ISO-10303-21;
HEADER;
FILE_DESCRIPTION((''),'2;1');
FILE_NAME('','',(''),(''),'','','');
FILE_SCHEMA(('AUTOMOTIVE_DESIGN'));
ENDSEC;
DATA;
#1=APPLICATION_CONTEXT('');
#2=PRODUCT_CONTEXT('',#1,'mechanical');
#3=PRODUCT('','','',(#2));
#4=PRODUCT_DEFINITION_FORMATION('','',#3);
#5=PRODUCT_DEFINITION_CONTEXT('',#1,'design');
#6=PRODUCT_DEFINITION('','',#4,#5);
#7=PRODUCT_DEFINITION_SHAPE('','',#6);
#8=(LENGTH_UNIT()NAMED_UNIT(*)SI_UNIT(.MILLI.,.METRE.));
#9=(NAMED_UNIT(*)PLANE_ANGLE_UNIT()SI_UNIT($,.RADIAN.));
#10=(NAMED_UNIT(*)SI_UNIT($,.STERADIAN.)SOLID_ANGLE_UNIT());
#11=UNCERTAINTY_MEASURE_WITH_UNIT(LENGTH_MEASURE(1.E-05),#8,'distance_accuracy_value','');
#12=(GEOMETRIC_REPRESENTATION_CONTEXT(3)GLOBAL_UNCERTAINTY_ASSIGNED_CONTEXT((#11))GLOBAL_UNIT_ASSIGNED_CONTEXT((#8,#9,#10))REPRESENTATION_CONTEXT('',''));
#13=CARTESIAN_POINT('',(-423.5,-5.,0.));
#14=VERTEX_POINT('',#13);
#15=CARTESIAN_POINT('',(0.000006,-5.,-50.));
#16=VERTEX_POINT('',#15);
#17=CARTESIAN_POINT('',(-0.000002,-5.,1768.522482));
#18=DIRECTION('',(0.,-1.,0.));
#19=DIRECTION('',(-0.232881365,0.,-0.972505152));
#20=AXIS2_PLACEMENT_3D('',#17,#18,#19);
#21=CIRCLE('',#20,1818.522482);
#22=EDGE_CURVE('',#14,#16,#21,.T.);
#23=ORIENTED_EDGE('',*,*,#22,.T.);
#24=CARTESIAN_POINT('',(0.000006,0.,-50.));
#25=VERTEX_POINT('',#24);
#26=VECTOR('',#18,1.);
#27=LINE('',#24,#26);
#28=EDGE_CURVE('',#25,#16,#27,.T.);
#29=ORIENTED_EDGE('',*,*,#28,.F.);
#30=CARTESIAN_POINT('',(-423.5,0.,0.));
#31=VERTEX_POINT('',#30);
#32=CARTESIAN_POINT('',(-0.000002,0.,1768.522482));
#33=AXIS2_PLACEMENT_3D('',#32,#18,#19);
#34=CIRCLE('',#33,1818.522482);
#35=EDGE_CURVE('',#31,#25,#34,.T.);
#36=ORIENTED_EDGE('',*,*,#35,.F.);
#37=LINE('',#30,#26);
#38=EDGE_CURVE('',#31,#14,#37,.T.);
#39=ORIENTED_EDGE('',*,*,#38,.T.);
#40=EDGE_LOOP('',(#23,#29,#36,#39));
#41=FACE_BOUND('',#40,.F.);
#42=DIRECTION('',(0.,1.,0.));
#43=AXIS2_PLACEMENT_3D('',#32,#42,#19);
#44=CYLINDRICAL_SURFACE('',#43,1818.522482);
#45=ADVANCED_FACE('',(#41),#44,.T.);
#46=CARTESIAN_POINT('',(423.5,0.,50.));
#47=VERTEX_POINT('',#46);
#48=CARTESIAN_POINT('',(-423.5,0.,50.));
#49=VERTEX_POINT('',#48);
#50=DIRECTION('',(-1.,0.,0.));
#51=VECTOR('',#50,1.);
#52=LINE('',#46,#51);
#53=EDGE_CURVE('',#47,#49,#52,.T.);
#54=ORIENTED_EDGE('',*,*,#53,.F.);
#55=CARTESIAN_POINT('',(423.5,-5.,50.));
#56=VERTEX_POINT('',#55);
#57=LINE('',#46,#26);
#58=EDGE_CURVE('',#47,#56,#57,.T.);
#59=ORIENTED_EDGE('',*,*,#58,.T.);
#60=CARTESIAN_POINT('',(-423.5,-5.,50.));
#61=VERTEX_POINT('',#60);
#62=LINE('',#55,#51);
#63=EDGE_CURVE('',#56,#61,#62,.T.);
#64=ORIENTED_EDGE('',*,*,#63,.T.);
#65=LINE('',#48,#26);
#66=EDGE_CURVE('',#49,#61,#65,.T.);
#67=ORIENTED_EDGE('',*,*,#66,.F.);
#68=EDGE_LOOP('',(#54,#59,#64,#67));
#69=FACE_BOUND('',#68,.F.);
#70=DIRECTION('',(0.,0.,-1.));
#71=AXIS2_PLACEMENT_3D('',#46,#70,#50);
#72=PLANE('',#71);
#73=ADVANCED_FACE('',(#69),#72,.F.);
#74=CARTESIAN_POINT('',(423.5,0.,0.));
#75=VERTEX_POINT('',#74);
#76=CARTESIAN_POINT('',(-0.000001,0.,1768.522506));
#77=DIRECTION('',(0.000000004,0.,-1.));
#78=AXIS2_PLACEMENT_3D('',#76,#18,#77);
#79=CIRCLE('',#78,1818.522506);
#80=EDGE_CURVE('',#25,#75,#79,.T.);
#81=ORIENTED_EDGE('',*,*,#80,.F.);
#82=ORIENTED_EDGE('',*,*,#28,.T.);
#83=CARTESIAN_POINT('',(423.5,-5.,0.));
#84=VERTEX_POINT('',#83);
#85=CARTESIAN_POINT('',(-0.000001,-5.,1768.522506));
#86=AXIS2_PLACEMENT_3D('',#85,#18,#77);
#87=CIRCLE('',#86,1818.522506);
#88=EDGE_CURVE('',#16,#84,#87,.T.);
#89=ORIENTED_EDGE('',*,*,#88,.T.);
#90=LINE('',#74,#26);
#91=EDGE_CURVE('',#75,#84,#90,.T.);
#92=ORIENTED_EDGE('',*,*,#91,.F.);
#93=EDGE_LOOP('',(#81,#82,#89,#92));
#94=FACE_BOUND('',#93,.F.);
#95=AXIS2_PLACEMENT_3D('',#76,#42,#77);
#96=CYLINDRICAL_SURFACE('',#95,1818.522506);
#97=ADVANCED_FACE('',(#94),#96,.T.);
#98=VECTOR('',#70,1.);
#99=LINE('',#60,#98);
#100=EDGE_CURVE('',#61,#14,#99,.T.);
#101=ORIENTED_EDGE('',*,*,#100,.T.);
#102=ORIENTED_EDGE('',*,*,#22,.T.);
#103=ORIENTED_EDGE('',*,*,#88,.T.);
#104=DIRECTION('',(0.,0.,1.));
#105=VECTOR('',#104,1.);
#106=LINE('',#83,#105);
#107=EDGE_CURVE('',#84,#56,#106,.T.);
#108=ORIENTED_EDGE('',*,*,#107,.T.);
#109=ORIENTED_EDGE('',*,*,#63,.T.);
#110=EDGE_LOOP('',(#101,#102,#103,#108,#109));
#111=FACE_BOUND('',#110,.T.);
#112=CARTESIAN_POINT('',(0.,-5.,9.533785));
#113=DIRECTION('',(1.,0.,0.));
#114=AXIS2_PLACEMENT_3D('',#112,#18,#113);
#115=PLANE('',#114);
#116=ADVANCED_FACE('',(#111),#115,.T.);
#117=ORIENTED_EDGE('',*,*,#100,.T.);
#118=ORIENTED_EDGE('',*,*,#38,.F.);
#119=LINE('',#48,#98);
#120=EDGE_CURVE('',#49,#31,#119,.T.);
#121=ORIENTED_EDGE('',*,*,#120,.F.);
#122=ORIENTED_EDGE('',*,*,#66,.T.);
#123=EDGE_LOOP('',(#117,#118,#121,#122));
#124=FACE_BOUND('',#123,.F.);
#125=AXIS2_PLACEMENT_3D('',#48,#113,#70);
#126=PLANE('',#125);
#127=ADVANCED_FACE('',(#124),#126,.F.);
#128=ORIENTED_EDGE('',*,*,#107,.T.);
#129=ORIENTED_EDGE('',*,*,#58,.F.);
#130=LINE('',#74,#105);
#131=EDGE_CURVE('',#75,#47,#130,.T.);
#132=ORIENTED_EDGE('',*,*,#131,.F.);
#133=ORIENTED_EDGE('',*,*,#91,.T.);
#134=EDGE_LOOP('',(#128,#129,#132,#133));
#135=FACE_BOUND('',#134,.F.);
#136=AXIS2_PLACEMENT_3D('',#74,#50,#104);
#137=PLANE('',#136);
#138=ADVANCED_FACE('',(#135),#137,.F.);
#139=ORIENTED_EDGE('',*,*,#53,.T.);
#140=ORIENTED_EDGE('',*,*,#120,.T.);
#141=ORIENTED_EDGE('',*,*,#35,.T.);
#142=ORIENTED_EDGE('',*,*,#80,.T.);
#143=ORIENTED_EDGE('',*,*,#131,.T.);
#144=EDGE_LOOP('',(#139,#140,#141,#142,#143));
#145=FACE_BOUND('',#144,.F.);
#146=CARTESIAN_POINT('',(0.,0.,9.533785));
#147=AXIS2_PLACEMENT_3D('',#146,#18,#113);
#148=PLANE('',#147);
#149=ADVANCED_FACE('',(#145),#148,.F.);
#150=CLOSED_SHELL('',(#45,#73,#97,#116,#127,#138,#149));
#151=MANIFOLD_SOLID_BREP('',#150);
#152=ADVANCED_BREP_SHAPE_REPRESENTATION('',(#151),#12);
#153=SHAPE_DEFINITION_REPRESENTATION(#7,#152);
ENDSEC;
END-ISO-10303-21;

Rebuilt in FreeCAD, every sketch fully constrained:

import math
import FreeCAD as App
import Part
import Sketcher

V = App.Vector

doc = App.newDocument("Part")
body = doc.addObject("PartDesign::Body", "Body")

sketch1 = body.newObject("Sketcher::SketchObject", "Sketch")
sketch1.AttachmentSupport = (doc.getObject("XZ_Plane"), [""])
sketch1.MapMode = "FlatFace"
sketch1.addGeometry(Part.ArcOfCircle(Part.Circle(V(0, 1769, 0), V(0, 0, 1), 1819), math.radians(-103.47), math.radians(-90)), False)
sketch1.addGeometry(Part.ArcOfCircle(Part.Circle(V(0, 1769, 0), V(0, 0, 1), 1819), math.radians(-90), math.radians(-76.53)), False)
sketch1.addGeometry(Part.LineSegment(V(424, 0, 0), V(424, 50, 0)), False)
sketch1.addGeometry(Part.LineSegment(V(424, 50, 0), V(-424, 50, 0)), False)
sketch1.addGeometry(Part.LineSegment(V(-424, 50, 0), V(-424, 0, 0)), False)
sketch1.addConstraint(Sketcher.Constraint("Coincident", 0, 2, 1, 1))
sketch1.addConstraint(Sketcher.Constraint("Coincident", 1, 2, 2, 1))
sketch1.addConstraint(Sketcher.Constraint("Coincident", 2, 2, 3, 1))
sketch1.addConstraint(Sketcher.Constraint("Coincident", 3, 2, 4, 1))
sketch1.addConstraint(Sketcher.Constraint("Coincident", 4, 2, 0, 1))
sketch1.addConstraint(Sketcher.Constraint("Vertical", 2))
sketch1.addConstraint(Sketcher.Constraint("Horizontal", 3))
sketch1.addConstraint(Sketcher.Constraint("Vertical", 4))
sketch1.addConstraint(Sketcher.Constraint("PointOnObject", 1, 3, -2))
sketch1.addConstraint(Sketcher.Constraint("PointOnObject", 4, 2, -1))
sketch1.addConstraint(Sketcher.Constraint("Vertical", 0, 3, 1, 3))
sketch1.addConstraint(Sketcher.Constraint("Equal", 2, 4))
sketch1.addConstraint(Sketcher.Constraint("DistanceX", 3, 2, 3, 1, 847.0))
sketch1.addConstraint(Sketcher.Constraint("DistanceY", 2, 1, 2, 2, 50.0))
sketch1.addConstraint(Sketcher.Constraint("DistanceY", 0, 2, -1, 1, 50.0))
sketch1.addConstraint(Sketcher.Constraint("DistanceX", -1, 1, 2, 2, 423.5))
sketch1.addConstraint(Sketcher.Constraint("DistanceX", 0, 2, 1, 2, 423.499994))
pad1 = body.newObject("PartDesign::Pad", "Pad")
pad1.Profile = sketch1
pad1.Length = 5

doc.recompute()
